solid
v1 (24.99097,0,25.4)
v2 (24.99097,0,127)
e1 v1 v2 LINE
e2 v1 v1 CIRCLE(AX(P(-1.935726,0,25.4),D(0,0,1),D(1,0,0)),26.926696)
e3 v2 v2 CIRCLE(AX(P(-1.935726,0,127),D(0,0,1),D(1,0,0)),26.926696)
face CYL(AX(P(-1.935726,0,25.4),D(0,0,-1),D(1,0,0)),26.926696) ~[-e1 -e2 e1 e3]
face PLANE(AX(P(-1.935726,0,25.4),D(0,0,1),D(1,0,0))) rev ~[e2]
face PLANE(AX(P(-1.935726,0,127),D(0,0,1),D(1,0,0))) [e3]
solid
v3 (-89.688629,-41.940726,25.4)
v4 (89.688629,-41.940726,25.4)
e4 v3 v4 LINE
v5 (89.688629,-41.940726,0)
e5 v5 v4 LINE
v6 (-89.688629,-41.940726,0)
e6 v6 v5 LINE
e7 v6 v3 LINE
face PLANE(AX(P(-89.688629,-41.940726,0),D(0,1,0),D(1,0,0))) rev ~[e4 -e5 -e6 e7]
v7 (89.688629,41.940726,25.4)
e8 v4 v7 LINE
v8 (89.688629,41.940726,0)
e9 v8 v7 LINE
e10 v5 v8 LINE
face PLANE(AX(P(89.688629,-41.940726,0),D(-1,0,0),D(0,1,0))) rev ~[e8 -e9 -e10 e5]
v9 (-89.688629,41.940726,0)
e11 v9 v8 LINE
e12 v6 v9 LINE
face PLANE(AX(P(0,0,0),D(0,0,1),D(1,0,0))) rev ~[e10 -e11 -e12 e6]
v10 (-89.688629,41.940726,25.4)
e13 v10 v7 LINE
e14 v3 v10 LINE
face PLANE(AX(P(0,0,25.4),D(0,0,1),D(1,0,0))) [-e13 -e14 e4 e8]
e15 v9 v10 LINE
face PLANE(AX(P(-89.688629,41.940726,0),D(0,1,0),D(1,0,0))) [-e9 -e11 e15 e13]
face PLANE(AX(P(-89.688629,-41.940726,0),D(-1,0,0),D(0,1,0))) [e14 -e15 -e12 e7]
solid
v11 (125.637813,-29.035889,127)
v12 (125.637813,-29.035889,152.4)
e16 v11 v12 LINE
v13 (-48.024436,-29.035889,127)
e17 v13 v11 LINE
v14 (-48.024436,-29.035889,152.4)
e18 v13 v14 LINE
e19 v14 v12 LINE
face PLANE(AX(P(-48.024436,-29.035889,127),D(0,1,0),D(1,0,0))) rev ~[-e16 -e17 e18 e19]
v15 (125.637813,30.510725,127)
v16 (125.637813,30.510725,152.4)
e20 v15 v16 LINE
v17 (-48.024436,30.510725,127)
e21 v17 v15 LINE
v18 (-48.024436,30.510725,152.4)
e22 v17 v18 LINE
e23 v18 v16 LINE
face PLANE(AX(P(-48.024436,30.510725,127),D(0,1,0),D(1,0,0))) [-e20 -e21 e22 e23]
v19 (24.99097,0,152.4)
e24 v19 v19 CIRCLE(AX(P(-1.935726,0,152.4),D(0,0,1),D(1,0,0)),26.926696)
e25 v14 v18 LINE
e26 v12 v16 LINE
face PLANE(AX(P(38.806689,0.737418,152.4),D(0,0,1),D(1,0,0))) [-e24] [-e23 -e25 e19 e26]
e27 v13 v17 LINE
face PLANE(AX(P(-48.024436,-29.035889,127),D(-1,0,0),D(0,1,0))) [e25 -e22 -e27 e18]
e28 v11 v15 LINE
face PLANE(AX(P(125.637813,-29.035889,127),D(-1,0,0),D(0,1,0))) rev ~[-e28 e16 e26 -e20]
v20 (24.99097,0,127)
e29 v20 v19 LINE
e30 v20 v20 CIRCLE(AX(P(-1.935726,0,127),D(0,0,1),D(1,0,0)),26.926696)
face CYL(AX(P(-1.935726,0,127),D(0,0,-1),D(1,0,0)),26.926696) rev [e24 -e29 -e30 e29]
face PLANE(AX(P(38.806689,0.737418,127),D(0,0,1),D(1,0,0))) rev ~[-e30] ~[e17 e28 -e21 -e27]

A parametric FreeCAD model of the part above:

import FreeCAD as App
import Part
import Sketcher
Q = App.Units.Quantity

doc = App.newDocument("Part")
body = doc.addObject("PartDesign::Body", "Body")

# Sketch on XY plane
sketch1 = body.newObject("Sketcher::SketchObject", "Sketch")
sketch1.AttachmentSupport = (doc.getObject("XY_Plane"), [""])
sketch1.MapMode = "FlatFace"
sketch1.addGeometry(Part.LineSegment(App.Vector(-90, 42, 0), App.Vector(-90, -42, 0)), False)
sketch1.addGeometry(Part.LineSegment(App.Vector(-90, -42, 0), App.Vector(90, -42, 0)), False)
sketch1.addGeometry(Part.LineSegment(App.Vector(90, -42, 0), App.Vector(90, 42, 0)), False)
sketch1.addGeometry(Part.LineSegment(App.Vector(90, 42, 0), App.Vector(-90, 42, 0)), False)
sketch1.addConstraint(Sketcher.Constraint("Coincident", 0, 2, 1, 1))
sketch1.addConstraint(Sketcher.Constraint("Coincident", 1, 2, 2, 1))
sketch1.addConstraint(Sketcher.Constraint("Coincident", 2, 2, 3, 1))
sketch1.addConstraint(Sketcher.Constraint("Coincident", 3, 2, 0, 1))
sketch1.addConstraint(Sketcher.Constraint("Vertical", 0))
sketch1.addConstraint(Sketcher.Constraint("Horizontal", 1))
sketch1.addConstraint(Sketcher.Constraint("Vertical", 2))
sketch1.addConstraint(Sketcher.Constraint("Horizontal", 3))
sketch1.addConstraint(Sketcher.Constraint("Symmetric", 0, 2, 2, 2, -1, 1))
sketch1.addConstraint(Sketcher.Constraint("DistanceX", 1, 1, 1, 2, Q("179.377258 mm")))
sketch1.addConstraint(Sketcher.Constraint("DistanceY", 0, 2, 0, 1, Q("83.881452 mm")))
pad1 = body.newObject("PartDesign::Pad", "Pad")
pad1.Profile = sketch1
pad1.Length = Q("1 in")
body2 = doc.addObject("PartDesign::Body", "Body001")

# Sketch on XY plane
sketch2 = body2.newObject("Sketcher::SketchObject", "Sketch001")
sketch2.AttachmentSupport = (doc.getObject("XY_Plane001"), [""])
sketch2.MapMode = "FlatFace"
sketch2.AttachmentOffset = App.Placement(App.Vector(0, 0, 1 * 25.4), App.Rotation())
sketch2.addGeometry(Part.Circle(App.Vector(-2, 0, 0), App.Vector(0, 0, 1), 27), False)
sketch2.addConstraint(Sketcher.Constraint("PointOnObject", 0, 3, -1))
sketch2.addConstraint(Sketcher.Constraint("Diameter", 0, Q("53.853392 mm")))
sketch2.addConstraint(Sketcher.Constraint("DistanceX", 0, 3, -1, 1, Q("1.935726 mm")))
pad2 = body2.newObject("PartDesign::Pad", "Pad001")
pad2.Profile = sketch2
pad2.Length = Q("4 in")
body3 = doc.addObject("PartDesign::Body", "Body002")

# Sketch on XY plane
sketch3 = body3.newObject("Sketcher::SketchObject", "Sketch002")
sketch3.AttachmentSupport = (doc.getObject("XY_Plane002"), [""])
sketch3.MapMode = "FlatFace"
sketch3.AttachmentOffset = App.Placement(App.Vector(0, 0, 5 * 25.4), App.Rotation())
sketch3.addGeometry(Part.LineSegment(App.Vector(-48, 31, 0), App.Vector(-48, -29, 0)), False)
sketch3.addGeometry(Part.LineSegment(App.Vector(-48, -29, 0), App.Vector(126, -29, 0)), False)
sketch3.addGeometry(Part.LineSegment(App.Vector(126, -29, 0), App.Vector(126, 31, 0)), False)
sketch3.addGeometry(Part.LineSegment(App.Vector(126, 31, 0), App.Vector(-48, 31, 0)), False)
sketch3.addGeometry(Part.Circle(App.Vector(-2, 0, 0), App.Vector(0, 0, 1), 27), False)
sketch3.addConstraint(Sketcher.Constraint("Coincident", 0, 2, 1, 1))
sketch3.addConstraint(Sketcher.Constraint("Coincident", 1, 2, 2, 1))
sketch3.addConstraint(Sketcher.Constraint("Coincident", 2, 2, 3, 1))
sketch3.addConstraint(Sketcher.Constraint("Coincident", 3, 2, 0, 1))
sketch3.addConstraint(Sketcher.Constraint("Vertical", 0))
sketch3.addConstraint(Sketcher.Constraint("Horizontal", 1))
sketch3.addConstraint(Sketcher.Constraint("Vertical", 2))
sketch3.addConstraint(Sketcher.Constraint("Horizontal", 3))
sketch3.addConstraint(Sketcher.Constraint("PointOnObject", 4, 3, -1))
sketch3.addConstraint(Sketcher.Constraint("Diameter", 4, Q("53.853392 mm")))
sketch3.addConstraint(Sketcher.Constraint("DistanceX", 1, 1, 1, 2, Q("173.662249 mm")))
sketch3.addConstraint(Sketcher.Constraint("DistanceY", 0, 2, 0, 1, Q("59.546614 mm")))
sketch3.addConstraint(Sketcher.Constraint("DistanceY", 0, 2, -1, 1, Q("29.035889 mm")))
sketch3.addConstraint(Sketcher.Constraint("DistanceX", 0, 2, 4, 3, Q("46.08871 mm")))
sketch3.addConstraint(Sketcher.Constraint("DistanceX", 4, 3, -1, 1, Q("1.935726 mm")))
pad3 = body3.newObject("PartDesign::Pad", "Pad002")
pad3.Profile = sketch3
pad3.Length = Q("1 in")

doc.recompute()
